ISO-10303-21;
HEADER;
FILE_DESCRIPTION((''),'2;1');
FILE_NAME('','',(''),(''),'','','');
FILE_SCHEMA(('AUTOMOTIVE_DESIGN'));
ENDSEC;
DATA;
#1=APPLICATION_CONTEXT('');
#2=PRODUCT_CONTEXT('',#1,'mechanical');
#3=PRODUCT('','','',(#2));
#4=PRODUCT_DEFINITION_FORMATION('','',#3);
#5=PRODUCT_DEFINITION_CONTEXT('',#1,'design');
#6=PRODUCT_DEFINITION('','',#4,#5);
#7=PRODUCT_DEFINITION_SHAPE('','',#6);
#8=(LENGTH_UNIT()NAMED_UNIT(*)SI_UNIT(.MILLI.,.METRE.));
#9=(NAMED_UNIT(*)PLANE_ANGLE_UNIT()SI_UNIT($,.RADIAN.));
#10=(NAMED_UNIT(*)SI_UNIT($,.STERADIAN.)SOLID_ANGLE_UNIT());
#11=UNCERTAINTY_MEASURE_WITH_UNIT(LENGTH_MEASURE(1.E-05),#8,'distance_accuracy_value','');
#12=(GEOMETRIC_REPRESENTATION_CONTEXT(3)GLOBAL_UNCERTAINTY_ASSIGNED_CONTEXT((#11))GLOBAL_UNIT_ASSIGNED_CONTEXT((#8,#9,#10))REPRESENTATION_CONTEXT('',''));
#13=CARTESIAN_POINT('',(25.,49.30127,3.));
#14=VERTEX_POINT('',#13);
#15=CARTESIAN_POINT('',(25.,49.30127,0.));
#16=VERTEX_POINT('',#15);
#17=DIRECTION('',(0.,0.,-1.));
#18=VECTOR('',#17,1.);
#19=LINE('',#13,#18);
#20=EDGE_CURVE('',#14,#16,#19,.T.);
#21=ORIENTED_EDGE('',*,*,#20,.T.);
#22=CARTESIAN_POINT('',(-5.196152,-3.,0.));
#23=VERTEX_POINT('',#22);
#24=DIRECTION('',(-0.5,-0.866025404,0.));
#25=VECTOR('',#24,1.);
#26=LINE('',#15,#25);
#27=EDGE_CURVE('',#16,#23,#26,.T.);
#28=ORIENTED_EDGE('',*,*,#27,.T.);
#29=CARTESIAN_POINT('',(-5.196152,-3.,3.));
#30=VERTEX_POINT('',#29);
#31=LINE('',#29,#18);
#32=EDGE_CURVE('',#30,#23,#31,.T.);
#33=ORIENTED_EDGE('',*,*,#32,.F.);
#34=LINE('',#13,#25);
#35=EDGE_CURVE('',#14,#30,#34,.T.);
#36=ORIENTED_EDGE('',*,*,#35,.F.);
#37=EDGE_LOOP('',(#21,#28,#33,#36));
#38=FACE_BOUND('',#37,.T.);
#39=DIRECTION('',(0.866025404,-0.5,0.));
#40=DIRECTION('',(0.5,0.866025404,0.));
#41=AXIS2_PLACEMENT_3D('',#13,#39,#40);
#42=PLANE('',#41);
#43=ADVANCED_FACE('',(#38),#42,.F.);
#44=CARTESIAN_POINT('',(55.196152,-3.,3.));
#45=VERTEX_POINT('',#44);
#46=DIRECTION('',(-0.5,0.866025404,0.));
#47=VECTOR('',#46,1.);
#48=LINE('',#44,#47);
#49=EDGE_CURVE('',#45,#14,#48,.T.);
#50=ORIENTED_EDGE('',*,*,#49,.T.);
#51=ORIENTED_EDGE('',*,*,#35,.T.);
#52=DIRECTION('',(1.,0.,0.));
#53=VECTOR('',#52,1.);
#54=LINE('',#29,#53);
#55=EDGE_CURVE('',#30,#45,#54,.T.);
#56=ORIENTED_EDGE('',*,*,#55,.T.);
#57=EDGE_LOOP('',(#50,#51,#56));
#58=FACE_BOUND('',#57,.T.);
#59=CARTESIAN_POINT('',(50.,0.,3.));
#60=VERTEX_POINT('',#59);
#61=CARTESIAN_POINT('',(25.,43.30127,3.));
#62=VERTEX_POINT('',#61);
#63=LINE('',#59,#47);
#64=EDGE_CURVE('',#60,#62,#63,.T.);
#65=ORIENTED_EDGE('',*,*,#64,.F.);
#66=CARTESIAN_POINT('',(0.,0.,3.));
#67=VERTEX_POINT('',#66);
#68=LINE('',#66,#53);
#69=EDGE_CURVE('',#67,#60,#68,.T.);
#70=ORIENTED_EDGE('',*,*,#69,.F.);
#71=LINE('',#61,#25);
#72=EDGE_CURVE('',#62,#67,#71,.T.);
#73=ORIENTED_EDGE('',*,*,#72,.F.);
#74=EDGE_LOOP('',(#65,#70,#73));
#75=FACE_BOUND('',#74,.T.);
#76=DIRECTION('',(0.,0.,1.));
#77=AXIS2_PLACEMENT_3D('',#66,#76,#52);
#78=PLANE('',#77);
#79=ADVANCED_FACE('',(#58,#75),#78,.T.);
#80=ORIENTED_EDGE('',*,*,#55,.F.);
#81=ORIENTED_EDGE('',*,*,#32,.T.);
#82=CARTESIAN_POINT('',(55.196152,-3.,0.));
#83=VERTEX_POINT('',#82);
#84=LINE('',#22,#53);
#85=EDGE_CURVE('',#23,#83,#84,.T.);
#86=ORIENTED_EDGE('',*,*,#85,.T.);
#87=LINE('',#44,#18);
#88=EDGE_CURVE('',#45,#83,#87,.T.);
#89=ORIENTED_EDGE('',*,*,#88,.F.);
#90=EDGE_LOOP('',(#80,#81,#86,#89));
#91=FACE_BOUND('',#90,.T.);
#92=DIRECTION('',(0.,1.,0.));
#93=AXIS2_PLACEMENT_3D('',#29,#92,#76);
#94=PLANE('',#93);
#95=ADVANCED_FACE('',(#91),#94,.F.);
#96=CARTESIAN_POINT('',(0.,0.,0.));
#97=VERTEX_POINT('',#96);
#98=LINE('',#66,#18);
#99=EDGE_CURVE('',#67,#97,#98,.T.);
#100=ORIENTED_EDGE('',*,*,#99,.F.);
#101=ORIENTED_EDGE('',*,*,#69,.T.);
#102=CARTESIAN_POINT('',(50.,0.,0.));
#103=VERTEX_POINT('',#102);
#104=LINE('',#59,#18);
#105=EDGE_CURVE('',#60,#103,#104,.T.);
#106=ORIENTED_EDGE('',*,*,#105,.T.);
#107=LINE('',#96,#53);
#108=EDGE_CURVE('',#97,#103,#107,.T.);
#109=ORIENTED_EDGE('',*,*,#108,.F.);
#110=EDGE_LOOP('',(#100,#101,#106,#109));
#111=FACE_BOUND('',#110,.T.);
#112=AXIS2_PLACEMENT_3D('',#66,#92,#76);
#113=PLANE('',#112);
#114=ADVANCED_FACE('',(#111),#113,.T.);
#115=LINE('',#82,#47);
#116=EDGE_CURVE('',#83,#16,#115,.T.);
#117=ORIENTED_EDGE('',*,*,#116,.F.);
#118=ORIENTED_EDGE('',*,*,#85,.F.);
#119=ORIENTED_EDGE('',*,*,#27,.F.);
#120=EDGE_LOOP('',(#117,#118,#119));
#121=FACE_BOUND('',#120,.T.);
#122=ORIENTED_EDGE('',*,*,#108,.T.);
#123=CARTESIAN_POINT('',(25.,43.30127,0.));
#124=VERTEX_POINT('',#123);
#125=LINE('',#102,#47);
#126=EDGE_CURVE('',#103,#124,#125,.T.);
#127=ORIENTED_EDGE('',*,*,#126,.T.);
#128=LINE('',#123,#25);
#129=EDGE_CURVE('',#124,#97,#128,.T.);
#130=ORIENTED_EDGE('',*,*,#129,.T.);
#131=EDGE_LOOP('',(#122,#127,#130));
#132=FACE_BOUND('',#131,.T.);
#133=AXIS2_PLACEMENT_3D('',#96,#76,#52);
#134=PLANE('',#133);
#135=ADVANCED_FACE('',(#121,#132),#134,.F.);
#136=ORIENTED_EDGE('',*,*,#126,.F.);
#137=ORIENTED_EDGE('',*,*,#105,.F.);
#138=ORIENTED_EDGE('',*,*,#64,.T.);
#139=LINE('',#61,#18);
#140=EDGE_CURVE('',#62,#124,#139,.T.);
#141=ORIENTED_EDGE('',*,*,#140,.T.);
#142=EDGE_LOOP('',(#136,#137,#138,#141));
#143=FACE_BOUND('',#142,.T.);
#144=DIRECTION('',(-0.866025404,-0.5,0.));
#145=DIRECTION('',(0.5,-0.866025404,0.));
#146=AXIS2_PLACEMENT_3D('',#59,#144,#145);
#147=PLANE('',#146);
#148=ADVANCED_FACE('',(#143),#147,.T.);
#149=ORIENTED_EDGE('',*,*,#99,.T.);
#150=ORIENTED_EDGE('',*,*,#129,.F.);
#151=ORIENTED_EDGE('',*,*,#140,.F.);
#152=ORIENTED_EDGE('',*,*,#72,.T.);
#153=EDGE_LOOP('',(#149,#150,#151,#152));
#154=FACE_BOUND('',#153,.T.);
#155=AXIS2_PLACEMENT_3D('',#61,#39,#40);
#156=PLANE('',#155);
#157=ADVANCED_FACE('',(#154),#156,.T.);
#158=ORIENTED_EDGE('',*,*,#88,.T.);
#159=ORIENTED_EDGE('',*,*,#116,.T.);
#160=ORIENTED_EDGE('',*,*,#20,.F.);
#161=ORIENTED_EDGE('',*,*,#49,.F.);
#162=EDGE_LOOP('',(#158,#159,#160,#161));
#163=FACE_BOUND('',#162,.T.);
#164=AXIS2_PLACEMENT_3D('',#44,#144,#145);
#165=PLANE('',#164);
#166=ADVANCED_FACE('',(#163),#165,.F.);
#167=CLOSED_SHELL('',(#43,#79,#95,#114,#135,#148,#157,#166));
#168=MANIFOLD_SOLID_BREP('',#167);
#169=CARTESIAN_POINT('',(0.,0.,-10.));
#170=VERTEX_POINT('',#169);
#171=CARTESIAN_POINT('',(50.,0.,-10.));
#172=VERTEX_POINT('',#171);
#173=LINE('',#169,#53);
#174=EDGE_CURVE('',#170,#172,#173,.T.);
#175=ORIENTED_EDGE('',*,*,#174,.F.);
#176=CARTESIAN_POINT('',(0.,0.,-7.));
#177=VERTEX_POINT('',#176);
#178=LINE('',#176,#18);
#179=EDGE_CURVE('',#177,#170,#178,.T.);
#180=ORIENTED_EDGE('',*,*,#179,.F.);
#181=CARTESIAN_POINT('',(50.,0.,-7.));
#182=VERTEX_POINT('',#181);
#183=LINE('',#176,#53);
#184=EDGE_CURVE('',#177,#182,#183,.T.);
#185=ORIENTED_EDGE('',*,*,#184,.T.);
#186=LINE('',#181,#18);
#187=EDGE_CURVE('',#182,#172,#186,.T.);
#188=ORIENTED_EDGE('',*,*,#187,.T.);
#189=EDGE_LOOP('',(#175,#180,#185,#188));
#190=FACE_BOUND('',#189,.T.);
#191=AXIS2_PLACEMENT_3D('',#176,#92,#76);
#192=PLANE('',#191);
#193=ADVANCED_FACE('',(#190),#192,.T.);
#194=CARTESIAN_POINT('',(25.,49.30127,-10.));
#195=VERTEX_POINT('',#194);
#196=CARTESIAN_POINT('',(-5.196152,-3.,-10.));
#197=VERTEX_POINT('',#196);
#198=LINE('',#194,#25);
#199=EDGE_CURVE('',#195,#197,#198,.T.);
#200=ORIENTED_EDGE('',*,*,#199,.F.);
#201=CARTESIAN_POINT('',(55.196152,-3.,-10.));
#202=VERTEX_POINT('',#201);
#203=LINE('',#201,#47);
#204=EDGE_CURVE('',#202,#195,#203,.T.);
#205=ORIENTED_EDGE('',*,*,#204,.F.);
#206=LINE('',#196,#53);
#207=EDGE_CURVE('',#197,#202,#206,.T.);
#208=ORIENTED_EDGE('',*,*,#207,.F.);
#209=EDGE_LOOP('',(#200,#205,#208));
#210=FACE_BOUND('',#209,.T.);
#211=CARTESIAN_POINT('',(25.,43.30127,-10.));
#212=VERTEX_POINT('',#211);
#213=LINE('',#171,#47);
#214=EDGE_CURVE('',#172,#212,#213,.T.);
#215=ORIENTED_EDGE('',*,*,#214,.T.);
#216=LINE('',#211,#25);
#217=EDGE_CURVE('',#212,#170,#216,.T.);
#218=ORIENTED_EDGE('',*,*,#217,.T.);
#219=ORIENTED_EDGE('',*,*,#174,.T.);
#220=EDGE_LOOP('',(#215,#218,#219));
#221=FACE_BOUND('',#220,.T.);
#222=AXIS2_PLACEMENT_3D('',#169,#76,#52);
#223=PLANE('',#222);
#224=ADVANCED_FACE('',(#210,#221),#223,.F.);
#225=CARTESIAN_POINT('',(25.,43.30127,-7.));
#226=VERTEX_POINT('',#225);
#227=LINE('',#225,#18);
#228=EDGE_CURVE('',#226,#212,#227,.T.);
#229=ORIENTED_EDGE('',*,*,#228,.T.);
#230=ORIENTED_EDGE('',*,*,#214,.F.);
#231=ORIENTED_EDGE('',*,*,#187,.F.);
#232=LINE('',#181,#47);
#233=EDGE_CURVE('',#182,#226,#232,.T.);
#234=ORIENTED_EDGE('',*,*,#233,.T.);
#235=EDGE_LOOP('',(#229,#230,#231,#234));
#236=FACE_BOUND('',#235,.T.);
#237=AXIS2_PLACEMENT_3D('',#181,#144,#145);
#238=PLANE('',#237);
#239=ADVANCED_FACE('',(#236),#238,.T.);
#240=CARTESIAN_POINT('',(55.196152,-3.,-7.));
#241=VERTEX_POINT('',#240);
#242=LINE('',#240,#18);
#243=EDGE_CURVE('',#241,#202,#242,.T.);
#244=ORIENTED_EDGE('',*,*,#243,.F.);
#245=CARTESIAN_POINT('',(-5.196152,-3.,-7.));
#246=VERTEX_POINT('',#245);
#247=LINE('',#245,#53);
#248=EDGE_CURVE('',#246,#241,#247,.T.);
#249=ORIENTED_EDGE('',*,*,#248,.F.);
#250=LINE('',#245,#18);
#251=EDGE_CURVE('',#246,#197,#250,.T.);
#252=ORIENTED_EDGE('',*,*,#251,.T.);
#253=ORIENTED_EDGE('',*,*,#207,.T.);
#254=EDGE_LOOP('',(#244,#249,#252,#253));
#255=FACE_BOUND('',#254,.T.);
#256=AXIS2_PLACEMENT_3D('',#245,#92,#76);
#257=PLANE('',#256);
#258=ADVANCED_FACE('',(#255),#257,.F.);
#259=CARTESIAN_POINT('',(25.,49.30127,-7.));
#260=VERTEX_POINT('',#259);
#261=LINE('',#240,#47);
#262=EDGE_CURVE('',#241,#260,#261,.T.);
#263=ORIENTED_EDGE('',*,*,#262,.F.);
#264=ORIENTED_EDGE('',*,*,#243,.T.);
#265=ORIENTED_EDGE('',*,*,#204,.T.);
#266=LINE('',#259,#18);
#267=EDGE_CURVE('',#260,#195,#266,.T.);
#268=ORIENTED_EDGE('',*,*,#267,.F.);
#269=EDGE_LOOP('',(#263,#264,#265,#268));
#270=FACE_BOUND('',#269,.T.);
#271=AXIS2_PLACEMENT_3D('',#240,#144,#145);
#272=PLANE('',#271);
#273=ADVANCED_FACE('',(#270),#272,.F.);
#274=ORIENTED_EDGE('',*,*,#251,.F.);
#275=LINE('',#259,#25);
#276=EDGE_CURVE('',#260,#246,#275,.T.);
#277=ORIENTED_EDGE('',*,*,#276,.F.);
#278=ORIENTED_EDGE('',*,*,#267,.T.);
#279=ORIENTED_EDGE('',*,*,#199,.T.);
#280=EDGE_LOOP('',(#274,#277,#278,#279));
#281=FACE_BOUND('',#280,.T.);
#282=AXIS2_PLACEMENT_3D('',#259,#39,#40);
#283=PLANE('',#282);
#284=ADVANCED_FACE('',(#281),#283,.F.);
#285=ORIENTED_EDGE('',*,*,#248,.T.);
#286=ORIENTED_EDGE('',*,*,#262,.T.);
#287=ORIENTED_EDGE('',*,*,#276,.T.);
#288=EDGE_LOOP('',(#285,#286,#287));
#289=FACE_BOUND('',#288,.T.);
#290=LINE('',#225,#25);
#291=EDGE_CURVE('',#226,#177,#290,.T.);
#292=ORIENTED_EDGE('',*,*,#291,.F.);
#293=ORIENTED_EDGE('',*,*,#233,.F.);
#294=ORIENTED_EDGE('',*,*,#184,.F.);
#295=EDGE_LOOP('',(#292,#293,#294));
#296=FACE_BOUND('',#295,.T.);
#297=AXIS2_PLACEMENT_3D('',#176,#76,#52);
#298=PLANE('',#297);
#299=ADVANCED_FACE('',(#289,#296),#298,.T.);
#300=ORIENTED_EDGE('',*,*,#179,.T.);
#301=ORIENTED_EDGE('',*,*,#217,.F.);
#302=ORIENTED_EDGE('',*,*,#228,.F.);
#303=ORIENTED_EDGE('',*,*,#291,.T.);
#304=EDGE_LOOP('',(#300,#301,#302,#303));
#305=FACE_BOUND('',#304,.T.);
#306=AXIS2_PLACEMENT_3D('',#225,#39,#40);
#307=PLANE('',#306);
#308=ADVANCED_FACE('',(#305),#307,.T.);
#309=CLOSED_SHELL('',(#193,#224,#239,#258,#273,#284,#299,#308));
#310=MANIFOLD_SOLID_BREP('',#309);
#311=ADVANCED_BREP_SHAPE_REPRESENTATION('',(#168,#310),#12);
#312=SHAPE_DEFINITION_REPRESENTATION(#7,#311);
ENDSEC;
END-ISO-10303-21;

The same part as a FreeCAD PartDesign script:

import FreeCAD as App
import Part
import Sketcher
Q = App.Units.Quantity


def add_polygon(sketch, points):
    """Adds a closed chain of lines whose ends are joined by coincident constraints."""
    first, n = sketch.GeometryCount, len(points)
    for a, b in zip(points, points[1:] + points[:1]):
        sketch.addGeometry(Part.LineSegment(App.Vector(*a, 0), App.Vector(*b, 0)), False)
    for i in range(n):
        sketch.addConstraint(Sketcher.Constraint("Coincident", first + i, 2, first + (i + 1) % n, 1))

doc = App.newDocument("Part")
body = doc.addObject("PartDesign::Body", "Body")

# Sketch on XY plane
sketch1 = body.newObject("Sketcher::SketchObject", "Sketch")
sketch1.AttachmentSupport = (doc.getObject("XY_Plane"), [""])
sketch1.MapMode = "FlatFace"
add_polygon(sketch1, [(55.196152, -3), (25, 49.30127), (-5.196152, -3)])  # lines 0-2
add_polygon(sketch1, [(50, 0), (0, 0), (25, 43.30127)])  # lines 3-5
sketch1.addConstraint(Sketcher.Constraint("Horizontal", 2))
sketch1.addConstraint(Sketcher.Constraint("Horizontal", 3))
sketch1.addConstraint(Sketcher.Constraint("Coincident", 3, 2, -1, 1))
sketch1.addConstraint(Sketcher.Constraint("Parallel", 1, 4))
sketch1.addConstraint(Sketcher.Constraint("Parallel", 0, 5))
sketch1.addConstraint(Sketcher.Constraint("Vertical", 0, 2, 4, 2))
sketch1.addConstraint(Sketcher.Constraint("Equal", 0, 1))
sketch1.addConstraint(Sketcher.Constraint("DistanceX", 3, 2, 3, 1, Q("50 mm")))
sketch1.addConstraint(Sketcher.Constraint("Angle", 0, Q("120 deg")))
sketch1.addConstraint(Sketcher.Constraint("DistanceY", 1, 2, -1, 1, Q("3 mm")))
sketch1.addConstraint(Sketcher.Constraint("DistanceY", 4, 2, 0, 2, Q("6 mm")))
pad1 = body.newObject("PartDesign::Pad", "Pad")
pad1.Profile = sketch1
pad1.Length = 3
body2 = doc.addObject("PartDesign::Body", "Body001")

# Sketch on XY plane
sketch2 = body2.newObject("Sketcher::SketchObject", "Sketch001")
sketch2.AttachmentSupport = (doc.getObject("XY_Plane001"), [""])
sketch2.MapMode = "FlatFace"
sketch2.AttachmentOffset = App.Placement(App.Vector(0, 0, -10), App.Rotation())
add_polygon(sketch2, [(55.196152, -3), (25, 49.30127), (-5.196152, -3)])  # lines 0-2
add_polygon(sketch2, [(50, 0), (0, 0), (25, 43.30127)])  # lines 3-5
sketch2.addConstraint(Sketcher.Constraint("Horizontal", 2))
sketch2.addConstraint(Sketcher.Constraint("Horizontal", 3))
sketch2.addConstraint(Sketcher.Constraint("Coincident", 3, 2, -1, 1))
sketch2.addConstraint(Sketcher.Constraint("Parallel", 1, 4))
sketch2.addConstraint(Sketcher.Constraint("Parallel", 0, 5))
sketch2.addConstraint(Sketcher.Constraint("Vertical", 0, 2, 4, 2))
sketch2.addConstraint(Sketcher.Constraint("Equal", 0, 1))
sketch2.addConstraint(Sketcher.Constraint("DistanceX", 3, 2, 3, 1, Q("50 mm")))
sketch2.addConstraint(Sketcher.Constraint("Angle", 0, Q("120 deg")))
sketch2.addConstraint(Sketcher.Constraint("DistanceY", 1, 2, -1, 1, Q("3 mm")))
sketch2.addConstraint(Sketcher.Constraint("DistanceY", 4, 2, 0, 2, Q("6 mm")))
pad2 = body2.newObject("PartDesign::Pad", "Pad001")
pad2.Profile = sketch2
pad2.Length = 3

doc.recompute()
